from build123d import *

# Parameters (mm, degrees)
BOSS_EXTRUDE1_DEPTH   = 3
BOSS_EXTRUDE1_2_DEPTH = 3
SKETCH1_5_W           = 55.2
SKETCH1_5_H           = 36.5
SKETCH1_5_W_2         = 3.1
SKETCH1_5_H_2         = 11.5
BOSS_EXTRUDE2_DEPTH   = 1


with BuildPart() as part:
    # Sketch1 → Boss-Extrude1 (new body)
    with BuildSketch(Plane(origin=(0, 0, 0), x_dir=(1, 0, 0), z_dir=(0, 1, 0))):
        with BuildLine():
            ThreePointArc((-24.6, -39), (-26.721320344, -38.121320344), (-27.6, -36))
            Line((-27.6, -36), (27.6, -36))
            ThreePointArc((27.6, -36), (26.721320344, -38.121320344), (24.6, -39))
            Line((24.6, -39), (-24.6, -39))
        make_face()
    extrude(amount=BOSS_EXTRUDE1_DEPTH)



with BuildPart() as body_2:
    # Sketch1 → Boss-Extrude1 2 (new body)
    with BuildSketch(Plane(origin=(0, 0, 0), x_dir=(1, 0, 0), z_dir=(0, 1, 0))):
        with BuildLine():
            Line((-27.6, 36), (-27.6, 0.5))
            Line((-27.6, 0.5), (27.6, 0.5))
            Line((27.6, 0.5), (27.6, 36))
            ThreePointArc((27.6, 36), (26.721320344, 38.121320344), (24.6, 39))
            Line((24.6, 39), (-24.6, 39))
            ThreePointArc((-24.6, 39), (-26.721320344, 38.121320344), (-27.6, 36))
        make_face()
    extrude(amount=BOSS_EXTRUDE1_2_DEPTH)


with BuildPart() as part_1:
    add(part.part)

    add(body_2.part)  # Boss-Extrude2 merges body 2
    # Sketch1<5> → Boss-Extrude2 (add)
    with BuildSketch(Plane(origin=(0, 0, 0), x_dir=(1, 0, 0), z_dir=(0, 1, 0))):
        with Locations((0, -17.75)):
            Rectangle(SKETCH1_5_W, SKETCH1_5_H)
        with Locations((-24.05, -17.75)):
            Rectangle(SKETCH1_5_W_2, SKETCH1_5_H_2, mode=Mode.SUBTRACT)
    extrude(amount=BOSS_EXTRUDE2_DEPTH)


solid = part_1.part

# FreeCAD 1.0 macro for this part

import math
import FreeCAD as App
import Part
import Sketcher

V = App.Vector
Q = App.Units.Quantity

doc = App.newDocument("Part")
body = doc.addObject("PartDesign::Body", "Body")

sketch1 = doc.addObject("Sketcher::SketchObject", "Sketch")
body.addObject(sketch1)
sketch1.AttachmentSupport = (doc.XZ_Plane, [""])
sketch1.MapMode = "FlatFace"
sketch1.addGeometry(Part.ArcOfCircle(Part.Circle(V(-24.6, 36, 0), V(0, 0, 1), 3), math.radians(90), math.radians(180)), False)
sketch1.addGeometry(Part.LineSegment(V(-24.6, 39, 0), V(24.6, 39, 0)), False)
sketch1.addGeometry(Part.ArcOfCircle(Part.Circle(V(24.6, 36, 0), V(0, 0, 1), 3), math.radians(0), math.radians(90)), False)
sketch1.addGeometry(Part.LineSegment(V(27.6, 36, 0), V(-27.6, 36, 0)), False)
sketch1.addConstraint(Sketcher.Constraint("Tangent", 0, 1, 1, 1))
sketch1.addConstraint(Sketcher.Constraint("Tangent", 1, 2, 2, 2))
sketch1.addConstraint(Sketcher.Constraint("Coincident", 2, 1, 3, 1))
sketch1.addConstraint(Sketcher.Constraint("Coincident", 3, 2, 0, 2))
sketch1.addConstraint(Sketcher.Constraint("Horizontal", 1))
sketch1.addConstraint(Sketcher.Constraint("Horizontal", 3))
sketch1.addConstraint(Sketcher.Constraint("Equal", 0, 2))
sketch1.addConstraint(Sketcher.Constraint("Horizontal", 0, 3, 2, 1))
sketch1.addConstraint(Sketcher.Constraint("Radius", 0, Q("3 mm")))
sketch1.addConstraint(Sketcher.Constraint("DistanceX", 1, 1, 1, 2, Q("49.2 mm")))
sketch1.addConstraint(Sketcher.Constraint("DistanceY", -1, 1, 0, 3, Q("36 mm")))
sketch1.addConstraint(Sketcher.Constraint("DistanceX", 0, 3, -1, 1, Q("24.6 mm")))
pad1 = doc.addObject("PartDesign::Pad", "Pad")
body.addObject(pad1)
pad1.Profile = sketch1
pad1.Length = 3
pad1.Reversed = True
body2 = doc.addObject("PartDesign::Body", "Body001")

sketch2 = doc.addObject("Sketcher::SketchObject", "Sketch001")
body2.addObject(sketch2)
sketch2.AttachmentSupport = (doc.getObject("XZ_Plane001"), [""])
sketch2.MapMode = "FlatFace"
sketch2.addGeometry(Part.LineSegment(V(-27.6, -36, 0), V(-27.6, -0.5, 0)), False)
sketch2.addGeometry(Part.LineSegment(V(-27.6, -0.5, 0), V(27.6, -0.5, 0)), False)
sketch2.addGeometry(Part.LineSegment(V(27.6, -0.5, 0), V(27.6, -36, 0)), False)
sketch2.addGeometry(Part.ArcOfCircle(Part.Circle(V(24.6, -36, 0), V(0, 0, 1), 3), math.radians(-90), math.radians(0)), False)
sketch2.addGeometry(Part.LineSegment(V(24.6, -39, 0), V(-24.6, -39, 0)), False)
sketch2.addGeometry(Part.ArcOfCircle(Part.Circle(V(-24.6, -36, 0), V(0, 0, 1), 3), math.radians(180), math.radians(270)), False)
sketch2.addConstraint(Sketcher.Constraint("Coincident", 0, 2, 1, 1))
sketch2.addConstraint(Sketcher.Constraint("Coincident", 1, 2, 2, 1))
sketch2.addConstraint(Sketcher.Constraint("Tangent", 2, 2, 3, 2))
sketch2.addConstraint(Sketcher.Constraint("Tangent", 3, 1, 4, 1))
sketch2.addConstraint(Sketcher.Constraint("Tangent", 4, 2, 5, 2))
sketch2.addConstraint(Sketcher.Constraint("Tangent", 5, 1, 0, 1))
sketch2.addConstraint(Sketcher.Constraint("Vertical", 0))
sketch2.addConstraint(Sketcher.Constraint("Horizontal", 1))
sketch2.addConstraint(Sketcher.Constraint("Vertical", 2))
sketch2.addConstraint(Sketcher.Constraint("Horizontal", 4))
sketch2.addConstraint(Sketcher.Constraint("Equal", 3, 5))
sketch2.addConstraint(Sketcher.Constraint("Radius", 3, Q("3 mm")))
sketch2.addConstraint(Sketcher.Constraint("DistanceX", 1, 1, 1, 2, Q("55.2 mm")))
sketch2.addConstraint(Sketcher.Constraint("DistanceY", 0, 1, 0, 2, Q("35.5 mm")))
sketch2.addConstraint(Sketcher.Constraint("DistanceY", 3, 3, -1, 1, Q("36 mm")))
sketch2.addConstraint(Sketcher.Constraint("DistanceX", -1, 1, 3, 3, Q("24.6 mm")))
pad2 = doc.addObject("PartDesign::Pad", "Pad001")
body2.addObject(pad2)
pad2.Profile = sketch2
pad2.Length = 3
pad2.Reversed = True
body.AllowCompound = True
doc.recompute()

boolean = doc.addObject("PartDesign::Boolean", "Boolean")
body.addObject(boolean)
boolean.Type = "Fuse"
boolean.addObjects([body2])

sketch3 = doc.addObject("Sketcher::SketchObject", "Sketch002")
body.addObject(sketch3)
sketch3.AttachmentSupport = (doc.XZ_Plane, [""])
sketch3.MapMode = "FlatFace"
sketch3.addGeometry(Part.LineSegment(V(-27.6, -0.5, 0), V(-27.6, 36, 0)), False)
sketch3.addGeometry(Part.LineSegment(V(-27.6, 36, 0), V(27.6, 36, 0)), False)
sketch3.addGeometry(Part.LineSegment(V(27.6, 36, 0), V(27.6, -0.5, 0)), False)
sketch3.addGeometry(Part.LineSegment(V(27.6, -0.5, 0), V(-27.6, -0.5, 0)), False)
sketch3.addGeometry(Part.LineSegment(V(-22.5, 23.5, 0), V(-25.6, 23.5, 0)), False)
sketch3.addGeometry(Part.LineSegment(V(-25.6, 23.5, 0), V(-25.6, 12, 0)), False)
sketch3.addGeometry(Part.LineSegment(V(-25.6, 12, 0), V(-22.5, 12, 0)), False)
sketch3.addGeometry(Part.LineSegment(V(-22.5, 12, 0), V(-22.5, 23.5, 0)), False)
sketch3.addConstraint(Sketcher.Constraint("Coincident", 0, 2, 1, 1))
sketch3.addConstraint(Sketcher.Constraint("Coincident", 1, 2, 2, 1))
sketch3.addConstraint(Sketcher.Constraint("Coincident", 2, 2, 3, 1))
sketch3.addConstraint(Sketcher.Constraint("Coincident", 3, 2, 0, 1))
sketch3.addConstraint(Sketcher.Constraint("Coincident", 4, 2, 5, 1))
sketch3.addConstraint(Sketcher.Constraint("Coincident", 5, 2, 6, 1))
sketch3.addConstraint(Sketcher.Constraint("Coincident", 6, 2, 7, 1))
sketch3.addConstraint(Sketcher.Constraint("Coincident", 7, 2, 4, 1))
sketch3.addConstraint(Sketcher.Constraint("Vertical", 0))
sketch3.addConstraint(Sketcher.Constraint("Horizontal", 1))
sketch3.addConstraint(Sketcher.Constraint("Vertical", 2))
sketch3.addConstraint(Sketcher.Constraint("Horizontal", 3))
sketch3.addConstraint(Sketcher.Constraint("Horizontal", 4))
sketch3.addConstraint(Sketcher.Constraint("Vertical", 5))
sketch3.addConstraint(Sketcher.Constraint("Horizontal", 6))
sketch3.addConstraint(Sketcher.Constraint("Vertical", 7))
sketch3.addConstraint(Sketcher.Constraint("DistanceX", 1, 1, 1, 2, Q("55.2 mm")))
sketch3.addConstraint(Sketcher.Constraint("DistanceX", 4, 2, 4, 1, Q("3.1 mm")))
sketch3.addConstraint(Sketcher.Constraint("DistanceY", 0, 1, 0, 2, Q("36.5 mm")))
sketch3.addConstraint(Sketcher.Constraint("DistanceY", 5, 2, 5, 1, Q("11.5 mm")))
sketch3.addConstraint(Sketcher.Constraint("DistanceY", -1, 1, 0, 2, Q("36 mm")))
sketch3.addConstraint(Sketcher.Constraint("DistanceY", -1, 1, 5, 2, Q("12 mm")))
sketch3.addConstraint(Sketcher.Constraint("DistanceX", 0, 2, 4, 2, Q("2 mm")))
sketch3.addConstraint(Sketcher.Constraint("DistanceX", 0, 2, -1, 1, Q("27.6 mm")))
pad3 = doc.addObject("PartDesign::Pad", "Pad002")
body.addObject(pad3)
pad3.Profile = sketch3
pad3.Length = 1
pad3.Reversed = True

doc.recompute()
